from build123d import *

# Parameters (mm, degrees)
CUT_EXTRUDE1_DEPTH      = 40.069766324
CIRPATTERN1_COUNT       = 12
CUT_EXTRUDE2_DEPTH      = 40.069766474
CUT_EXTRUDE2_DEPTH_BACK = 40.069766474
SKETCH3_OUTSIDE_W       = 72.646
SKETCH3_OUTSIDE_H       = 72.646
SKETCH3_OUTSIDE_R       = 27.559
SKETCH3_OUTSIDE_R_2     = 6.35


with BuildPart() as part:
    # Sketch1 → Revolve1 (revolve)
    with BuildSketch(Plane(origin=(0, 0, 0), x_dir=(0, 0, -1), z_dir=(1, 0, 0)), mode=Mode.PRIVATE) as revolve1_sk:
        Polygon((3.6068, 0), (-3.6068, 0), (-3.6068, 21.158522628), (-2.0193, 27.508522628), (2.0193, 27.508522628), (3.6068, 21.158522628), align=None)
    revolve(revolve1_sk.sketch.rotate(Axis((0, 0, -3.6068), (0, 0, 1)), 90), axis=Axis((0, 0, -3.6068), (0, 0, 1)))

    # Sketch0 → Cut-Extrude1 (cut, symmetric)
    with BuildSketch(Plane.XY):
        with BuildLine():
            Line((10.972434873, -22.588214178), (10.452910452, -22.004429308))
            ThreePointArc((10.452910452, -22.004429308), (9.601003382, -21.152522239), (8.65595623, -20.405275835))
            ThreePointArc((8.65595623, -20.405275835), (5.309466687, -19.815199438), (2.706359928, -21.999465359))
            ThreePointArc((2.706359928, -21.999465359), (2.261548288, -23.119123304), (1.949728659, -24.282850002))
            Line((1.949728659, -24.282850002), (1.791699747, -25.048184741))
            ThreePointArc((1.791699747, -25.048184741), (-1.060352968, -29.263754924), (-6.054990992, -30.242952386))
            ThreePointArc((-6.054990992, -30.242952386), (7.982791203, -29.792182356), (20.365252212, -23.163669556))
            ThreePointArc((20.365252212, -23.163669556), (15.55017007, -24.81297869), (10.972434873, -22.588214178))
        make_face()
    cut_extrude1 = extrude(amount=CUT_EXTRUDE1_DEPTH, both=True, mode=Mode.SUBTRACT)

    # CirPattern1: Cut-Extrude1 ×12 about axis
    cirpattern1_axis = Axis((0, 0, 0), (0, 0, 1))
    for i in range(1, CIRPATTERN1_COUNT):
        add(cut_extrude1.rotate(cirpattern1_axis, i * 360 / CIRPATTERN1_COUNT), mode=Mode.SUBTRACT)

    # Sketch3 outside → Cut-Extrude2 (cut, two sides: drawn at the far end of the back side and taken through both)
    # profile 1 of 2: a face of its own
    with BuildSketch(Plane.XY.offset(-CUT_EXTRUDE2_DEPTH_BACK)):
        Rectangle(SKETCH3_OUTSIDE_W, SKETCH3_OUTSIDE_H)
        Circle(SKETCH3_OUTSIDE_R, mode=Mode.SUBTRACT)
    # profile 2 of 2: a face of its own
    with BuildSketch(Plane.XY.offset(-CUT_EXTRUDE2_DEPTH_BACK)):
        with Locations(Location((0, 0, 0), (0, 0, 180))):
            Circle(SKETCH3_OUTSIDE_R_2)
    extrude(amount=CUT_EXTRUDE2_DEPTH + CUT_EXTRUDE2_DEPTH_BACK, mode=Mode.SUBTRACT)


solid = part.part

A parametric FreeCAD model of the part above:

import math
import FreeCAD as App
import Part
import Sketcher
from FreeCAD import Vector
Q = App.Units.Quantity

doc = App.newDocument("Part")
body = doc.addObject("PartDesign::Body", "Body")

# Sketch on YZ plane
sketch1 = body.newObject("Sketcher::SketchObject", "Sketch")
sketch1.AttachmentSupport = (doc.getObject("YZ_Plane"), [""])
sketch1.MapMode = "FlatFace"
sketch1.addGeometry(Part.LineSegment(Vector(0, 3.6068, 0), Vector(0, -3.6068, 0)), False)
sketch1.addGeometry(Part.LineSegment(Vector(0, -3.6068, 0), Vector(21.158523, -3.6068, 0)), False)
sketch1.addGeometry(Part.LineSegment(Vector(21.158523, -3.6068, 0), Vector(27.508523, -2.0193, 0)), False)
sketch1.addGeometry(Part.LineSegment(Vector(27.508523, -2.0193, 0), Vector(27.508523, 2.0193, 0)), False)
sketch1.addGeometry(Part.LineSegment(Vector(27.508523, 2.0193, 0), Vector(21.158523, 3.6068, 0)), False)
sketch1.addGeometry(Part.LineSegment(Vector(21.158523, 3.6068, 0), Vector(0, 3.6068, 0)), False)
sketch1.addConstraint(Sketcher.Constraint("Coincident", 0, 2, 1, 1))
sketch1.addConstraint(Sketcher.Constraint("Coincident", 1, 2, 2, 1))
sketch1.addConstraint(Sketcher.Constraint("Coincident", 2, 2, 3, 1))
sketch1.addConstraint(Sketcher.Constraint("Coincident", 3, 2, 4, 1))
sketch1.addConstraint(Sketcher.Constraint("Coincident", 4, 2, 5, 1))
sketch1.addConstraint(Sketcher.Constraint("Coincident", 5, 2, 0, 1))
sketch1.addConstraint(Sketcher.Constraint("Vertical", 0))
sketch1.addConstraint(Sketcher.Constraint("Horizontal", 1))
sketch1.addConstraint(Sketcher.Constraint("Vertical", 3))
sketch1.addConstraint(Sketcher.Constraint("Horizontal", 5))
sketch1.addConstraint(Sketcher.Constraint("Symmetric", 0, 2, 5, 2, -1, 1))
sketch1.addConstraint(Sketcher.Constraint("Vertical", 1, 2, 4, 2))
sketch1.addConstraint(Sketcher.Constraint("Equal", 2, 4))
sketch1.addConstraint(Sketcher.Constraint("DistanceY", 0, 2, 0, 1, Q("0.284 in")))
sketch1.addConstraint(Sketcher.Constraint("DistanceY", 3, 1, 3, 2, Q("0.159 in")))
sketch1.addConstraint(Sketcher.Constraint("DistanceX", 1, 2, 2, 2, Q("0.25 in")))
sketch1.addConstraint(Sketcher.Constraint("DistanceX", 1, 1, 1, 2, 21.158523))
revolution = body.newObject("PartDesign::Revolution", "Revolution")
revolution.Profile = sketch1
revolution.ReferenceAxis = (sketch1, ["V_Axis"])
revolution.Angle = 360

# Sketch on XY plane
sketch2 = body.newObject("Sketcher::SketchObject", "Sketch001")
sketch2.AttachmentSupport = (doc.getObject("XY_Plane"), [""])
sketch2.MapMode = "FlatFace"
sketch2.addGeometry(Part.LineSegment(Vector(10.972435, -22.588214, 0), Vector(10.45291, -22.004429, 0)), False)
sketch2.addGeometry(Part.ArcOfCircle(Part.Circle(Vector(2.713617, -28.891816, 0), Vector(0, 0, 1), 10.360152), math.radians(41.666667), math.radians(55)), False)
sketch2.addGeometry(Part.ArcOfCircle(Part.Circle(Vector(6.35, -23.698523, 0), Vector(0, 0, 1), 4.020312), math.radians(55), math.radians(155)), False)
sketch2.addGeometry(Part.ArcOfCircle(Part.Circle(Vector(12.095846, -26.377855, 0), Vector(0, 0, 1), 10.360152), math.radians(155), math.radians(168.333333)), False)
sketch2.addGeometry(Part.LineSegment(Vector(1.949729, -24.28285, 0), Vector(1.7917, -25.048185, 0)), False)
sketch2.addGeometry(Part.ArcOfCircle(Part.Circle(Vector(-4.74472, -23.698523, 0), Vector(0, 0, 1), 6.674307), math.radians(-101.321592), math.radians(-11.666667)), False)
sketch2.addGeometry(Part.ArcOfCircle(Part.Circle(Vector(0, 0, 0), Vector(0, 0, 1), 30.843137), math.radians(-101.321591), math.radians(-48.678409)), False)
sketch2.addGeometry(Part.ArcOfCircle(Part.Circle(Vector(15.958309, -18.151163, 0), Vector(0, 0, 1), 6.674307), math.radians(-138.333333), math.radians(-48.678409)), False)
sketch2.addConstraint(Sketcher.Constraint("Tangent", 0, 2, 1, 1))
sketch2.addConstraint(Sketcher.Constraint("Tangent", 1, 2, 2, 1))
sketch2.addConstraint(Sketcher.Constraint("Tangent", 2, 2, 3, 1))
sketch2.addConstraint(Sketcher.Constraint("Tangent", 3, 2, 4, 1))
sketch2.addConstraint(Sketcher.Constraint("Tangent", 4, 2, 5, 2))
sketch2.addConstraint(Sketcher.Constraint("Tangent", 5, 1, 6, 1))
sketch2.addConstraint(Sketcher.Constraint("Tangent", 6, 2, 7, 2))
sketch2.addConstraint(Sketcher.Constraint("Tangent", 7, 1, 0, 1))
sketch2.addConstraint(Sketcher.Constraint("Coincident", 6, 3, -1, 1))
sketch2.addConstraint(Sketcher.Constraint("Equal", 1, 3))
sketch2.addConstraint(Sketcher.Constraint("Equal", 5, 7))
sketch2.addConstraint(Sketcher.Constraint("Horizontal", 2, 3, 5, 3))
sketch2.addConstraint(Sketcher.Constraint("Equal", 0, 4))
sketch2.addConstraint(Sketcher.Constraint("DistanceX", -1, 1, 2, 3, Q("0.25 in")))
sketch2.addConstraint(Sketcher.Constraint("Radius", 2, 4.020312))
sketch2.addConstraint(Sketcher.Constraint("Radius", 3, 10.360152))
sketch2.addConstraint(Sketcher.Constraint("DistanceX", 5, 3, -1, 1, Q("0.1868 in")))
sketch2.addConstraint(Sketcher.Constraint("Radius", 5, 6.674307))
sketch2.addConstraint(Sketcher.Constraint("Radius", 6, 30.843137))
sketch2.addConstraint(Sketcher.Constraint("DistanceY", 2, 3, 7, 3, Q("0.2184 in")))
sketch2.addConstraint(Sketcher.Constraint("DistanceX", 1, 2, 7, 1, Q("0.0911999 in")))
pocket1 = body.newObject("PartDesign::Pocket", "Pocket")
pocket1.Profile = sketch2
pocket1.Length = 80.139533
pocket1.Midplane = True
doc.recompute()

polarpattern = body.newObject("PartDesign::PolarPattern", "PolarPattern")
polarpattern.Originals = [pocket1]
polarpattern.Axis = (doc.getObject("Z_Axis"), [""])
polarpattern.Angle = 360
polarpattern.Occurrences = 12
body.Tip = polarpattern

# Sketch on XY plane
sketch3 = body.newObject("Sketcher::SketchObject", "Sketch002")
sketch3.AttachmentSupport = (doc.getObject("XY_Plane"), [""])
sketch3.MapMode = "FlatFace"
sketch3.addGeometry(Part.LineSegment(Vector(-36.323, 36.323, 0), Vector(-36.323, -36.323, 0)), False)
sketch3.addGeometry(Part.LineSegment(Vector(-36.323, -36.323, 0), Vector(36.323, -36.323, 0)), False)
sketch3.addGeometry(Part.LineSegment(Vector(36.323, -36.323, 0), Vector(36.323, 36.323, 0)), False)
sketch3.addGeometry(Part.LineSegment(Vector(36.323, 36.323, 0), Vector(-36.323, 36.323, 0)), False)
sketch3.addGeometry(Part.Circle(Vector(0, 0, 0), Vector(0, 0, 1), 27.559), False)
sketch3.addGeometry(Part.Circle(Vector(0, 0, 0), Vector(0, 0, 1), 6.35), False)
sketch3.addConstraint(Sketcher.Constraint("Coincident", 0, 2, 1, 1))
sketch3.addConstraint(Sketcher.Constraint("Coincident", 1, 2, 2, 1))
sketch3.addConstraint(Sketcher.Constraint("Coincident", 2, 2, 3, 1))
sketch3.addConstraint(Sketcher.Constraint("Coincident", 3, 2, 0, 1))
sketch3.addConstraint(Sketcher.Constraint("Vertical", 0))
sketch3.addConstraint(Sketcher.Constraint("Horizontal", 1))
sketch3.addConstraint(Sketcher.Constraint("Vertical", 2))
sketch3.addConstraint(Sketcher.Constraint("Horizontal", 3))
sketch3.addConstraint(Sketcher.Constraint("Coincident", 4, 3, -1, 1))
sketch3.addConstraint(Sketcher.Constraint("Coincident", 5, 3, -1, 1))
sketch3.addConstraint(Sketcher.Constraint("Symmetric", 0, 2, 2, 2, -1, 1))
sketch3.addConstraint(Sketcher.Constraint("Equal", 3, 0))
sketch3.addConstraint(Sketcher.Constraint("Diameter", 5, Q("0.5 in")))
sketch3.addConstraint(Sketcher.Constraint("Diameter", 4, Q("2.17 in")))
sketch3.addConstraint(Sketcher.Constraint("DistanceX", 1, 1, 1, 2, 72.646))
pocket2 = body.newObject("PartDesign::Pocket", "Pocket001")
pocket2.Profile = sketch3
pocket2.Type = "ThroughAll"
pocket2.Midplane = True

doc.recompute()
